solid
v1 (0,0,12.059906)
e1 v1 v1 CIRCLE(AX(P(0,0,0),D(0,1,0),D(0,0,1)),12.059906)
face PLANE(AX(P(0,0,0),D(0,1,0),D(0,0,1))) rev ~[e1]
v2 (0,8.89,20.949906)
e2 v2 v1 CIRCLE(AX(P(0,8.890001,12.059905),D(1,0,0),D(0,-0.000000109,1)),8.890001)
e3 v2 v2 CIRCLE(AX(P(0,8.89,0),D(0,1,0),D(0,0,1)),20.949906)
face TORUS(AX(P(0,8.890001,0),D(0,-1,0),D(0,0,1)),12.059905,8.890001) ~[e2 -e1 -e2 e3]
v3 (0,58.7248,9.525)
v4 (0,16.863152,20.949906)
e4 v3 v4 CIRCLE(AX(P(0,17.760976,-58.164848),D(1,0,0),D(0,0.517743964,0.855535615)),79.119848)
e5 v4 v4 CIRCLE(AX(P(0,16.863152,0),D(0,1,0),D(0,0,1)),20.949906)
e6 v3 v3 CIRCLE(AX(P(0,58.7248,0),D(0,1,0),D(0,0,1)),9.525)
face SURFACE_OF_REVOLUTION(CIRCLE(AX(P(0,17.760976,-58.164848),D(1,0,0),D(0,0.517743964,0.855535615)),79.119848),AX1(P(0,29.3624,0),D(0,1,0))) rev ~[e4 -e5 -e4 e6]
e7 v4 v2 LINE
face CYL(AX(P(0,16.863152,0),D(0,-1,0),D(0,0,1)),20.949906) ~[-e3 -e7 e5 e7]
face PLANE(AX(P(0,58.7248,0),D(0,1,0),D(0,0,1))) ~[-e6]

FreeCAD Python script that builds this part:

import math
import FreeCAD as App
import Part
import Sketcher
from FreeCAD import Vector
Q = App.Units.Quantity

doc = App.newDocument("Part")
body = doc.addObject("PartDesign::Body", "Body")

# Sketch on YZ plane
sketch1 = doc.addObject("Sketcher::SketchObject", "Sketch")
body.addObject(sketch1)
sketch1.AttachmentSupport = (doc.YZ_Plane, [""])
sketch1.MapMode = "FlatFace"
sketch1.addGeometry(Part.LineSegment(Vector(0, 12, 0), Vector(0, 0, 0)), False)
sketch1.addGeometry(Part.LineSegment(Vector(0, 0, 0), Vector(59, 0, 0)), False)
sketch1.addGeometry(Part.LineSegment(Vector(59, 0, 0), Vector(59, 10, 0)), False)
sketch1.addGeometry(Part.ArcOfCircle(Part.Circle(Vector(18, -58, 0), Vector(0, 0, 1), 79), math.radians(59), math.radians(91)), False)
sketch1.addGeometry(Part.LineSegment(Vector(17, 21, 0), Vector(9, 21, 0)), False)
sketch1.addGeometry(Part.ArcOfCircle(Part.Circle(Vector(9, 12, 0), Vector(0, 0, 1), 9), math.radians(90), math.radians(180)), False)
sketch1.addConstraint(Sketcher.Constraint("Coincident", 0, 2, 1, 1))
sketch1.addConstraint(Sketcher.Constraint("Coincident", 1, 2, 2, 1))
sketch1.addConstraint(Sketcher.Constraint("Coincident", 2, 2, 3, 1))
sketch1.addConstraint(Sketcher.Constraint("Coincident", 3, 2, 4, 1))
sketch1.addConstraint(Sketcher.Constraint("Tangent", 4, 2, 5, 1))
sketch1.addConstraint(Sketcher.Constraint("Tangent", 5, 2, 0, 1))
sketch1.addConstraint(Sketcher.Constraint("Vertical", 0))
sketch1.addConstraint(Sketcher.Constraint("Horizontal", 1))
sketch1.addConstraint(Sketcher.Constraint("Vertical", 2))
sketch1.addConstraint(Sketcher.Constraint("Horizontal", 4))
sketch1.addConstraint(Sketcher.Constraint("Coincident", 0, 2, -1, 1))
sketch1.addConstraint(Sketcher.Constraint("Radius", 5, Q("0.35 in")))
sketch1.addConstraint(Sketcher.Constraint("DistanceX", 1, 1, 1, 2, Q("2.312 in")))
sketch1.addConstraint(Sketcher.Constraint("DistanceY", 2, 1, 2, 2, Q("0.375 in")))
sketch1.addConstraint(Sketcher.Constraint("Radius", 3, Q("79.119848 mm")))
sketch1.addConstraint(Sketcher.Constraint("DistanceX", 4, 2, 4, 1, Q("7.973152 mm")))
sketch1.addConstraint(Sketcher.Constraint("DistanceY", 0, 2, 0, 1, Q("12.059906 mm")))
revolution = doc.addObject("PartDesign::Revolution", "Revolution")
body.addObject(revolution)
revolution.Profile = sketch1
revolution.ReferenceAxis = (sketch1, ["H_Axis"])
revolution.Angle = 360

doc.recompute()
